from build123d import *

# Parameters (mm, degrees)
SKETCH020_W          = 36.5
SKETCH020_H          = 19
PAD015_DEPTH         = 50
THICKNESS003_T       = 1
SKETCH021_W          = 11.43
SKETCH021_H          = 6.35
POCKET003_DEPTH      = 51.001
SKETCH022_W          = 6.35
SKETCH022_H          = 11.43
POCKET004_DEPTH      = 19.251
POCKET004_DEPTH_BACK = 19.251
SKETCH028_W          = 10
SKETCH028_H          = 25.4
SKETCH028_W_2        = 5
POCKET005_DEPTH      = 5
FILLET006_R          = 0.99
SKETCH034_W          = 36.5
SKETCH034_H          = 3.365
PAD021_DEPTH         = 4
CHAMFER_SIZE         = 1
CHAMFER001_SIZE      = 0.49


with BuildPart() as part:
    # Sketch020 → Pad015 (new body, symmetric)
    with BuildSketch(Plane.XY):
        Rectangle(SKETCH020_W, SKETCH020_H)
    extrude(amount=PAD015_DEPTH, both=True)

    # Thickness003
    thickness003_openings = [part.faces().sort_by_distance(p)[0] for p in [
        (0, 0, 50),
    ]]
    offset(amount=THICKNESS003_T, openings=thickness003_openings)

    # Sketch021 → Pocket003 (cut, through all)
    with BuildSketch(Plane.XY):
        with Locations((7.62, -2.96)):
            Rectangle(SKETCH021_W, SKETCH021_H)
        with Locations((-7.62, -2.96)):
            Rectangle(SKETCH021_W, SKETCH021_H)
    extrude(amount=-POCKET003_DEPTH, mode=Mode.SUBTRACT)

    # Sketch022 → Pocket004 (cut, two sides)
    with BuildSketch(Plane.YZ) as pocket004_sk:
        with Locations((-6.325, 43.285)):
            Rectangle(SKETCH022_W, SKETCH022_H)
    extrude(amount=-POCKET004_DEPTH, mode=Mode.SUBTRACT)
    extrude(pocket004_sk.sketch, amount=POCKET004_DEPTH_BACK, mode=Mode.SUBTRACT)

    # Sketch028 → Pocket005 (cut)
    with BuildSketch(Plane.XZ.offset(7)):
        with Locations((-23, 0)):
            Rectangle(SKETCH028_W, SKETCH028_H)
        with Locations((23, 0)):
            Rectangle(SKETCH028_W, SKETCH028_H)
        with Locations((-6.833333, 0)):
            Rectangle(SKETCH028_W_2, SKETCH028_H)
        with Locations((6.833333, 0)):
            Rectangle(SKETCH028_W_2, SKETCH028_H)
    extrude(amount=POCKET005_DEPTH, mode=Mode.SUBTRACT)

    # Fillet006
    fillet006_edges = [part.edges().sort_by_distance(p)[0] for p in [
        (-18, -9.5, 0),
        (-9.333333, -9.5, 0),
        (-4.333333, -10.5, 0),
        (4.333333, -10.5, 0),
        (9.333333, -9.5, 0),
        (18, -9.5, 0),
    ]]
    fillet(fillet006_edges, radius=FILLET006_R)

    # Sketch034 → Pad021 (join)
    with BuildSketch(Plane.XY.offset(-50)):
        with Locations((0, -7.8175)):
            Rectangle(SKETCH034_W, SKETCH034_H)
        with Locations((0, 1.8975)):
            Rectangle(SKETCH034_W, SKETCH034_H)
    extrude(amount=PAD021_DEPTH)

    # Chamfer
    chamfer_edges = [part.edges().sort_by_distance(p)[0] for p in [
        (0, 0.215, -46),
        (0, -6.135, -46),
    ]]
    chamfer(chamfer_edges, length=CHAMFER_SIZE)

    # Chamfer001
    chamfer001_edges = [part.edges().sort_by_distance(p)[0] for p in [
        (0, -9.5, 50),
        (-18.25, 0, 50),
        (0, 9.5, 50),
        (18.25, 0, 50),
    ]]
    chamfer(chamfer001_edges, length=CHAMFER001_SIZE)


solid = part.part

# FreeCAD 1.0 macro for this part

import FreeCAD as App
import Part
import Sketcher
Q = App.Units.Quantity


def edges_at(feature, points):
    """Names of the edges that pass closest to the given points."""
    edges = feature.Shape.Edges
    near = lambda p: min(range(len(edges)), key=lambda i: edges[i].distToShape(Part.Vertex(*p))[0])
    return sorted({f"Edge{near(p) + 1}" for p in points})


def faces_at(feature, points):
    """Names of the faces that lie closest to the given points."""
    faces = feature.Shape.Faces
    near = lambda p: min(range(len(faces)), key=lambda i: faces[i].distToShape(Part.Vertex(*p))[0])
    return sorted({f"Face{near(p) + 1}" for p in points})

doc = App.newDocument("Part")
body = doc.addObject("PartDesign::Body", "Body")

# Sketch on XY plane
sketch1 = doc.addObject("Sketcher::SketchObject", "Sketch")
body.addObject(sketch1)
sketch1.AttachmentSupport = (doc.XY_Plane, [""])
sketch1.MapMode = "FlatFace"
sketch1.addGeometry(Part.LineSegment(App.Vector(-18, 10, 0), App.Vector(-18, -10, 0)), False)
sketch1.addGeometry(Part.LineSegment(App.Vector(-18, -10, 0), App.Vector(18, -10, 0)), False)
sketch1.addGeometry(Part.LineSegment(App.Vector(18, -10, 0), App.Vector(18, 10, 0)), False)
sketch1.addGeometry(Part.LineSegment(App.Vector(18, 10, 0), App.Vector(-18, 10, 0)), False)
sketch1.addConstraint(Sketcher.Constraint("Coincident", 0, 2, 1, 1))
sketch1.addConstraint(Sketcher.Constraint("Coincident", 1, 2, 2, 1))
sketch1.addConstraint(Sketcher.Constraint("Coincident", 2, 2, 3, 1))
sketch1.addConstraint(Sketcher.Constraint("Coincident", 3, 2, 0, 1))
sketch1.addConstraint(Sketcher.Constraint("Vertical", 0))
sketch1.addConstraint(Sketcher.Constraint("Horizontal", 1))
sketch1.addConstraint(Sketcher.Constraint("Vertical", 2))
sketch1.addConstraint(Sketcher.Constraint("Horizontal", 3))
sketch1.addConstraint(Sketcher.Constraint("Symmetric", 0, 2, 2, 2, -1, 1))
sketch1.addConstraint(Sketcher.Constraint("DistanceY", 0, 2, 0, 1, Q("19 mm")))
sketch1.addConstraint(Sketcher.Constraint("DistanceX", 1, 1, 1, 2, Q("36.5 mm")))
pad1 = doc.addObject("PartDesign::Pad", "Pad")
body.addObject(pad1)
pad1.Profile = sketch1
pad1.Length = 100
pad1.Midplane = True
doc.recompute()

thickness = doc.addObject("PartDesign::Thickness", "Thickness")
body.addObject(thickness)
thickness.Base = (pad1, faces_at(pad1, [(0, 0, 50)]))
thickness.Value = 1
thickness.Reversed = False
thickness.Join = "Arc"

# Sketch on XY plane
sketch2 = doc.addObject("Sketcher::SketchObject", "Sketch001")
body.addObject(sketch2)
sketch2.AttachmentSupport = (doc.XY_Plane, [""])
sketch2.MapMode = "FlatFace"
sketch2.addGeometry(Part.LineSegment(App.Vector(2, 0, 0), App.Vector(2, -6, 0)), False)
sketch2.addGeometry(Part.LineSegment(App.Vector(2, -6, 0), App.Vector(13, -6, 0)), False)
sketch2.addGeometry(Part.LineSegment(App.Vector(13, -6, 0), App.Vector(13, 0, 0)), False)
sketch2.addGeometry(Part.LineSegment(App.Vector(13, 0, 0), App.Vector(2, 0, 0)), False)
sketch2.addGeometry(Part.LineSegment(App.Vector(-13, 0, 0), App.Vector(-13, -6, 0)), False)
sketch2.addGeometry(Part.LineSegment(App.Vector(-13, -6, 0), App.Vector(-2, -6, 0)), False)
sketch2.addGeometry(Part.LineSegment(App.Vector(-2, -6, 0), App.Vector(-2, 0, 0)), False)
sketch2.addGeometry(Part.LineSegment(App.Vector(-2, 0, 0), App.Vector(-13, 0, 0)), False)
sketch2.addConstraint(Sketcher.Constraint("Coincident", 0, 2, 1, 1))
sketch2.addConstraint(Sketcher.Constraint("Coincident", 1, 2, 2, 1))
sketch2.addConstraint(Sketcher.Constraint("Coincident", 2, 2, 3, 1))
sketch2.addConstraint(Sketcher.Constraint("Coincident", 3, 2, 0, 1))
sketch2.addConstraint(Sketcher.Constraint("Coincident", 4, 2, 5, 1))
sketch2.addConstraint(Sketcher.Constraint("Coincident", 5, 2, 6, 1))
sketch2.addConstraint(Sketcher.Constraint("Coincident", 6, 2, 7, 1))
sketch2.addConstraint(Sketcher.Constraint("Coincident", 7, 2, 4, 1))
sketch2.addConstraint(Sketcher.Constraint("Vertical", 0))
sketch2.addConstraint(Sketcher.Constraint("Horizontal", 1))
sketch2.addConstraint(Sketcher.Constraint("Vertical", 2))
sketch2.addConstraint(Sketcher.Constraint("Horizontal", 3))
sketch2.addConstraint(Sketcher.Constraint("Vertical", 4))
sketch2.addConstraint(Sketcher.Constraint("Horizontal", 5))
sketch2.addConstraint(Sketcher.Constraint("Vertical", 6))
sketch2.addConstraint(Sketcher.Constraint("Horizontal", 7))
sketch2.addConstraint(Sketcher.Constraint("Symmetric", 1, 2, 4, 2, -2))
sketch2.addConstraint(Sketcher.Constraint("Symmetric", 3, 2, 6, 2, -2))
sketch2.addConstraint(Sketcher.Constraint("DistanceX", 1, 1, 1, 2, Q("11.43 mm")))
sketch2.addConstraint(Sketcher.Constraint("DistanceY", 0, 2, 0, 1, Q("6.35 mm")))
sketch2.addConstraint(Sketcher.Constraint("DistanceX", 4, 2, 0, 2, Q("15.24 mm")))
sketch2.addConstraint(Sketcher.Constraint("DistanceY", 0, 2, -1, 1, Q("6.135 mm")))
pocket1 = doc.addObject("PartDesign::Pocket", "Pocket")
body.addObject(pocket1)
pocket1.Profile = sketch2
pocket1.Type = "ThroughAll"

# Sketch on YZ plane
sketch3 = doc.addObject("Sketcher::SketchObject", "Sketch002")
body.addObject(sketch3)
sketch3.AttachmentSupport = (doc.YZ_Plane, [""])
sketch3.MapMode = "FlatFace"
sketch3.addGeometry(Part.LineSegment(App.Vector(-10, 49, 0), App.Vector(-10, 38, 0)), False)
sketch3.addGeometry(Part.LineSegment(App.Vector(-10, 38, 0), App.Vector(-3, 38, 0)), False)
sketch3.addGeometry(Part.LineSegment(App.Vector(-3, 38, 0), App.Vector(-3, 49, 0)), False)
sketch3.addGeometry(Part.LineSegment(App.Vector(-3, 49, 0), App.Vector(-10, 49, 0)), False)
sketch3.addConstraint(Sketcher.Constraint("Coincident", 0, 2, 1, 1))
sketch3.addConstraint(Sketcher.Constraint("Coincident", 1, 2, 2, 1))
sketch3.addConstraint(Sketcher.Constraint("Coincident", 2, 2, 3, 1))
sketch3.addConstraint(Sketcher.Constraint("Coincident", 3, 2, 0, 1))
sketch3.addConstraint(Sketcher.Constraint("Vertical", 0))
sketch3.addConstraint(Sketcher.Constraint("Horizontal", 1))
sketch3.addConstraint(Sketcher.Constraint("Vertical", 2))
sketch3.addConstraint(Sketcher.Constraint("Horizontal", 3))
sketch3.addConstraint(Sketcher.Constraint("DistanceY", -1, 1, 2, 2, Q("49 mm")))
sketch3.addConstraint(Sketcher.Constraint("DistanceX", 1, 1, 1, 2, Q("6.35 mm")))
sketch3.addConstraint(Sketcher.Constraint("DistanceY", 0, 2, 0, 1, Q("11.43 mm")))
sketch3.addConstraint(Sketcher.Constraint("DistanceX", 0, 2, -1, 1, Q("9.5 mm")))
pocket2 = doc.addObject("PartDesign::Pocket", "Pocket001")
body.addObject(pocket2)
pocket2.Profile = sketch3
pocket2.Type = "ThroughAll"
pocket2.Midplane = True

# Sketch on XZ plane
sketch4 = doc.addObject("Sketcher::SketchObject", "Sketch003")
body.addObject(sketch4)
sketch4.AttachmentSupport = (doc.XZ_Plane, [""])
sketch4.MapMode = "FlatFace"
sketch4.AttachmentOffset = App.Placement(App.Vector(0, 0, 7), App.Rotation())
sketch4.addGeometry(Part.LineSegment(App.Vector(-28, 13, 0), App.Vector(-28, -13, 0)), False)
sketch4.addGeometry(Part.LineSegment(App.Vector(-28, -13, 0), App.Vector(-18, -13, 0)), False)
sketch4.addGeometry(Part.LineSegment(App.Vector(-18, -13, 0), App.Vector(-18, 13, 0)), False)
sketch4.addGeometry(Part.LineSegment(App.Vector(-18, 13, 0), App.Vector(-28, 13, 0)), False)
sketch4.addGeometry(Part.LineSegment(App.Vector(18, 13, 0), App.Vector(18, -13, 0)), False)
sketch4.addGeometry(Part.LineSegment(App.Vector(18, -13, 0), App.Vector(28, -13, 0)), False)
sketch4.addGeometry(Part.LineSegment(App.Vector(28, -13, 0), App.Vector(28, 13, 0)), False)
sketch4.addGeometry(Part.LineSegment(App.Vector(28, 13, 0), App.Vector(18, 13, 0)), False)
sketch4.addGeometry(Part.LineSegment(App.Vector(-9, 13, 0), App.Vector(-9, -13, 0)), False)
sketch4.addGeometry(Part.LineSegment(App.Vector(-9, -13, 0), App.Vector(-4, -13, 0)), False)
sketch4.addGeometry(Part.LineSegment(App.Vector(-4, -13, 0), App.Vector(-4, 13, 0)), False)
sketch4.addGeometry(Part.LineSegment(App.Vector(-4, 13, 0), App.Vector(-9, 13, 0)), False)
sketch4.addGeometry(Part.LineSegment(App.Vector(4, 13, 0), App.Vector(4, -13, 0)), False)
sketch4.addGeometry(Part.LineSegment(App.Vector(4, -13, 0), App.Vector(9, -13, 0)), False)
sketch4.addGeometry(Part.LineSegment(App.Vector(9, -13, 0), App.Vector(9, 13, 0)), False)
sketch4.addGeometry(Part.LineSegment(App.Vector(9, 13, 0), App.Vector(4, 13, 0)), False)
sketch4.addConstraint(Sketcher.Constraint("Coincident", 0, 2, 1, 1))
sketch4.addConstraint(Sketcher.Constraint("Coincident", 1, 2, 2, 1))
sketch4.addConstraint(Sketcher.Constraint("Coincident", 2, 2, 3, 1))
sketch4.addConstraint(Sketcher.Constraint("Coincident", 3, 2, 0, 1))
sketch4.addConstraint(Sketcher.Constraint("Coincident", 4, 2, 5, 1))
sketch4.addConstraint(Sketcher.Constraint("Coincident", 5, 2, 6, 1))
sketch4.addConstraint(Sketcher.Constraint("Coincident", 6, 2, 7, 1))
sketch4.addConstraint(Sketcher.Constraint("Coincident", 7, 2, 4, 1))
sketch4.addConstraint(Sketcher.Constraint("Coincident", 8, 2, 9, 1))
sketch4.addConstraint(Sketcher.Constraint("Coincident", 9, 2, 10, 1))
sketch4.addConstraint(Sketcher.Constraint("Coincident", 10, 2, 11, 1))
sketch4.addConstraint(Sketcher.Constraint("Coincident", 11, 2, 8, 1))
sketch4.addConstraint(Sketcher.Constraint("Coincident", 12, 2, 13, 1))
sketch4.addConstraint(Sketcher.Constraint("Coincident", 13, 2, 14, 1))
sketch4.addConstraint(Sketcher.Constraint("Coincident", 14, 2, 15, 1))
sketch4.addConstraint(Sketcher.Constraint("Coincident", 15, 2, 12, 1))
sketch4.addConstraint(Sketcher.Constraint("Vertical", 0))
sketch4.addConstraint(Sketcher.Constraint("Horizontal", 1))
sketch4.addConstraint(Sketcher.Constraint("Vertical", 2))
sketch4.addConstraint(Sketcher.Constraint("Horizontal", 3))
sketch4.addConstraint(Sketcher.Constraint("Vertical", 4))
sketch4.addConstraint(Sketcher.Constraint("Horizontal", 5))
sketch4.addConstraint(Sketcher.Constraint("Vertical", 6))
sketch4.addConstraint(Sketcher.Constraint("Horizontal", 7))
sketch4.addConstraint(Sketcher.Constraint("Vertical", 8))
sketch4.addConstraint(Sketcher.Constraint("Horizontal", 9))
sketch4.addConstraint(Sketcher.Constraint("Vertical", 10))
sketch4.addConstraint(Sketcher.Constraint("Horizontal", 11))
sketch4.addConstraint(Sketcher.Constraint("Vertical", 12))
sketch4.addConstraint(Sketcher.Constraint("Horizontal", 13))
sketch4.addConstraint(Sketcher.Constraint("Vertical", 14))
sketch4.addConstraint(Sketcher.Constraint("Horizontal", 15))
sketch4.addConstraint(Sketcher.Constraint("Symmetric", 2, 2, 4, 2, -1, 1))
sketch4.addConstraint(Sketcher.Constraint("Symmetric", 0, 2, 6, 2, -1, 1))
sketch4.addConstraint(Sketcher.Constraint("Symmetric", 10, 2, 12, 2, -1, 1))
sketch4.addConstraint(Sketcher.Constraint("Symmetric", 8, 2, 14, 2, -1, 1))
sketch4.addConstraint(Sketcher.Constraint("Horizontal", 1, 2, 4, 2))
sketch4.addConstraint(Sketcher.Constraint("Horizontal", 5, 2, 8, 2))
sketch4.addConstraint(Sketcher.Constraint("Horizontal", 7, 2, 10, 2))
sketch4.addConstraint(Sketcher.Constraint("DistanceX", 1, 1, 1, 2, Q("10 mm")))
sketch4.addConstraint(Sketcher.Constraint("DistanceX", 9, 1, 9, 2, Q("5 mm")))
sketch4.addConstraint(Sketcher.Constraint("DistanceY", 0, 2, 0, 1, Q("25.4 mm")))
sketch4.addConstraint(Sketcher.Constraint("DistanceX", 0, 2, -1, 1, Q("28 mm")))
sketch4.addConstraint(Sketcher.Constraint("DistanceX", 8, 2, -1, 1, Q("9.333333 mm")))
pocket3 = doc.addObject("PartDesign::Pocket", "Pocket002")
body.addObject(pocket3)
pocket3.Profile = sketch4
pocket3.Length = 5
pocket3.Reversed = True
doc.recompute()

fillet = doc.addObject("PartDesign::Fillet", "Fillet")
body.addObject(fillet)
fillet.Base = (pocket3, edges_at(pocket3, [
    (-18, -9.5, 0),
    (-9.333, -9.5, 0),
    (-4.333, -10.5, 0),
    (4.333, -10.5, 0),
    (9.333, -9.5, 0),
    (18, -9.5, 0),
]))
fillet.Radius = 0.99

# Sketch on XY plane
sketch5 = doc.addObject("Sketcher::SketchObject", "Sketch004")
body.addObject(sketch5)
sketch5.AttachmentSupport = (doc.XY_Plane, [""])
sketch5.MapMode = "FlatFace"
sketch5.AttachmentOffset = App.Placement(App.Vector(0, 0, -50), App.Rotation())
sketch5.addGeometry(Part.LineSegment(App.Vector(-18.2, -6.1, 0), App.Vector(-18.2, -9.5, 0)), False)
sketch5.addGeometry(Part.LineSegment(App.Vector(-18.2, -9.5, 0), App.Vector(18.2, -9.5, 0)), False)
sketch5.addGeometry(Part.LineSegment(App.Vector(18.2, -9.5, 0), App.Vector(18.2, -6.1, 0)), False)
sketch5.addGeometry(Part.LineSegment(App.Vector(18.2, -6.1, 0), App.Vector(-18.2, -6.1, 0)), False)
sketch5.addGeometry(Part.LineSegment(App.Vector(-18.2, 3.6, 0), App.Vector(-18.2, 0.2, 0)), False)
sketch5.addGeometry(Part.LineSegment(App.Vector(-18.2, 0.2, 0), App.Vector(18.2, 0.2, 0)), False)
sketch5.addGeometry(Part.LineSegment(App.Vector(18.2, 0.2, 0), App.Vector(18.2, 3.6, 0)), False)
sketch5.addGeometry(Part.LineSegment(App.Vector(18.2, 3.6, 0), App.Vector(-18.2, 3.6, 0)), False)
sketch5.addConstraint(Sketcher.Constraint("Coincident", 0, 2, 1, 1))
sketch5.addConstraint(Sketcher.Constraint("Coincident", 1, 2, 2, 1))
sketch5.addConstraint(Sketcher.Constraint("Coincident", 2, 2, 3, 1))
sketch5.addConstraint(Sketcher.Constraint("Coincident", 3, 2, 0, 1))
sketch5.addConstraint(Sketcher.Constraint("Coincident", 4, 2, 5, 1))
sketch5.addConstraint(Sketcher.Constraint("Coincident", 5, 2, 6, 1))
sketch5.addConstraint(Sketcher.Constraint("Coincident", 6, 2, 7, 1))
sketch5.addConstraint(Sketcher.Constraint("Coincident", 7, 2, 4, 1))
sketch5.addConstraint(Sketcher.Constraint("Vertical", 0))
sketch5.addConstraint(Sketcher.Constraint("Horizontal", 1))
sketch5.addConstraint(Sketcher.Constraint("Vertical", 2))
sketch5.addConstraint(Sketcher.Constraint("Horizontal", 3))
sketch5.addConstraint(Sketcher.Constraint("Vertical", 4))
sketch5.addConstraint(Sketcher.Constraint("Horizontal", 5))
sketch5.addConstraint(Sketcher.Constraint("Vertical", 6))
sketch5.addConstraint(Sketcher.Constraint("Horizontal", 7))
sketch5.addConstraint(Sketcher.Constraint("Vertical", 3, 2, 4, 2))
sketch5.addConstraint(Sketcher.Constraint("Vertical", 2, 2, 5, 2))
sketch5.addConstraint(Sketcher.Constraint("Equal", 2, 4))
sketch5.addConstraint(Sketcher.Constraint("DistanceX", 1, 1, 1, 2, Q("36.5 mm")))
sketch5.addConstraint(Sketcher.Constraint("DistanceY", 0, 2, -1, 1, Q("9.5 mm")))
sketch5.addConstraint(Sketcher.Constraint("DistanceY", 0, 2, 0, 1, Q("3.365 mm")))
sketch5.addConstraint(Sketcher.Constraint("DistanceX", 0, 2, -1, 1, Q("18.25 mm")))
sketch5.addConstraint(Sketcher.Constraint("DistanceY", -1, 1, 6, 2, Q("3.58 mm")))
pad2 = doc.addObject("PartDesign::Pad", "Pad001")
body.addObject(pad2)
pad2.Profile = sketch5
pad2.Length = 4
doc.recompute()

chamfer = doc.addObject("PartDesign::Chamfer", "Chamfer")
body.addObject(chamfer)
chamfer.Base = (pad2, edges_at(pad2, [(0, 0.215, -46), (0, -6.135, -46)]))
chamfer.Size = 1
doc.recompute()

chamfer2 = doc.addObject("PartDesign::Chamfer", "Chamfer001")
body.addObject(chamfer2)
chamfer2.Base = (chamfer, edges_at(chamfer, [
    (0, -9.5, 50),
    (-18.25, 0, 50),
    (0, 9.5, 50),
    (18.25, 0, 50),
]))
chamfer2.Size = 0.49

doc.recompute()
